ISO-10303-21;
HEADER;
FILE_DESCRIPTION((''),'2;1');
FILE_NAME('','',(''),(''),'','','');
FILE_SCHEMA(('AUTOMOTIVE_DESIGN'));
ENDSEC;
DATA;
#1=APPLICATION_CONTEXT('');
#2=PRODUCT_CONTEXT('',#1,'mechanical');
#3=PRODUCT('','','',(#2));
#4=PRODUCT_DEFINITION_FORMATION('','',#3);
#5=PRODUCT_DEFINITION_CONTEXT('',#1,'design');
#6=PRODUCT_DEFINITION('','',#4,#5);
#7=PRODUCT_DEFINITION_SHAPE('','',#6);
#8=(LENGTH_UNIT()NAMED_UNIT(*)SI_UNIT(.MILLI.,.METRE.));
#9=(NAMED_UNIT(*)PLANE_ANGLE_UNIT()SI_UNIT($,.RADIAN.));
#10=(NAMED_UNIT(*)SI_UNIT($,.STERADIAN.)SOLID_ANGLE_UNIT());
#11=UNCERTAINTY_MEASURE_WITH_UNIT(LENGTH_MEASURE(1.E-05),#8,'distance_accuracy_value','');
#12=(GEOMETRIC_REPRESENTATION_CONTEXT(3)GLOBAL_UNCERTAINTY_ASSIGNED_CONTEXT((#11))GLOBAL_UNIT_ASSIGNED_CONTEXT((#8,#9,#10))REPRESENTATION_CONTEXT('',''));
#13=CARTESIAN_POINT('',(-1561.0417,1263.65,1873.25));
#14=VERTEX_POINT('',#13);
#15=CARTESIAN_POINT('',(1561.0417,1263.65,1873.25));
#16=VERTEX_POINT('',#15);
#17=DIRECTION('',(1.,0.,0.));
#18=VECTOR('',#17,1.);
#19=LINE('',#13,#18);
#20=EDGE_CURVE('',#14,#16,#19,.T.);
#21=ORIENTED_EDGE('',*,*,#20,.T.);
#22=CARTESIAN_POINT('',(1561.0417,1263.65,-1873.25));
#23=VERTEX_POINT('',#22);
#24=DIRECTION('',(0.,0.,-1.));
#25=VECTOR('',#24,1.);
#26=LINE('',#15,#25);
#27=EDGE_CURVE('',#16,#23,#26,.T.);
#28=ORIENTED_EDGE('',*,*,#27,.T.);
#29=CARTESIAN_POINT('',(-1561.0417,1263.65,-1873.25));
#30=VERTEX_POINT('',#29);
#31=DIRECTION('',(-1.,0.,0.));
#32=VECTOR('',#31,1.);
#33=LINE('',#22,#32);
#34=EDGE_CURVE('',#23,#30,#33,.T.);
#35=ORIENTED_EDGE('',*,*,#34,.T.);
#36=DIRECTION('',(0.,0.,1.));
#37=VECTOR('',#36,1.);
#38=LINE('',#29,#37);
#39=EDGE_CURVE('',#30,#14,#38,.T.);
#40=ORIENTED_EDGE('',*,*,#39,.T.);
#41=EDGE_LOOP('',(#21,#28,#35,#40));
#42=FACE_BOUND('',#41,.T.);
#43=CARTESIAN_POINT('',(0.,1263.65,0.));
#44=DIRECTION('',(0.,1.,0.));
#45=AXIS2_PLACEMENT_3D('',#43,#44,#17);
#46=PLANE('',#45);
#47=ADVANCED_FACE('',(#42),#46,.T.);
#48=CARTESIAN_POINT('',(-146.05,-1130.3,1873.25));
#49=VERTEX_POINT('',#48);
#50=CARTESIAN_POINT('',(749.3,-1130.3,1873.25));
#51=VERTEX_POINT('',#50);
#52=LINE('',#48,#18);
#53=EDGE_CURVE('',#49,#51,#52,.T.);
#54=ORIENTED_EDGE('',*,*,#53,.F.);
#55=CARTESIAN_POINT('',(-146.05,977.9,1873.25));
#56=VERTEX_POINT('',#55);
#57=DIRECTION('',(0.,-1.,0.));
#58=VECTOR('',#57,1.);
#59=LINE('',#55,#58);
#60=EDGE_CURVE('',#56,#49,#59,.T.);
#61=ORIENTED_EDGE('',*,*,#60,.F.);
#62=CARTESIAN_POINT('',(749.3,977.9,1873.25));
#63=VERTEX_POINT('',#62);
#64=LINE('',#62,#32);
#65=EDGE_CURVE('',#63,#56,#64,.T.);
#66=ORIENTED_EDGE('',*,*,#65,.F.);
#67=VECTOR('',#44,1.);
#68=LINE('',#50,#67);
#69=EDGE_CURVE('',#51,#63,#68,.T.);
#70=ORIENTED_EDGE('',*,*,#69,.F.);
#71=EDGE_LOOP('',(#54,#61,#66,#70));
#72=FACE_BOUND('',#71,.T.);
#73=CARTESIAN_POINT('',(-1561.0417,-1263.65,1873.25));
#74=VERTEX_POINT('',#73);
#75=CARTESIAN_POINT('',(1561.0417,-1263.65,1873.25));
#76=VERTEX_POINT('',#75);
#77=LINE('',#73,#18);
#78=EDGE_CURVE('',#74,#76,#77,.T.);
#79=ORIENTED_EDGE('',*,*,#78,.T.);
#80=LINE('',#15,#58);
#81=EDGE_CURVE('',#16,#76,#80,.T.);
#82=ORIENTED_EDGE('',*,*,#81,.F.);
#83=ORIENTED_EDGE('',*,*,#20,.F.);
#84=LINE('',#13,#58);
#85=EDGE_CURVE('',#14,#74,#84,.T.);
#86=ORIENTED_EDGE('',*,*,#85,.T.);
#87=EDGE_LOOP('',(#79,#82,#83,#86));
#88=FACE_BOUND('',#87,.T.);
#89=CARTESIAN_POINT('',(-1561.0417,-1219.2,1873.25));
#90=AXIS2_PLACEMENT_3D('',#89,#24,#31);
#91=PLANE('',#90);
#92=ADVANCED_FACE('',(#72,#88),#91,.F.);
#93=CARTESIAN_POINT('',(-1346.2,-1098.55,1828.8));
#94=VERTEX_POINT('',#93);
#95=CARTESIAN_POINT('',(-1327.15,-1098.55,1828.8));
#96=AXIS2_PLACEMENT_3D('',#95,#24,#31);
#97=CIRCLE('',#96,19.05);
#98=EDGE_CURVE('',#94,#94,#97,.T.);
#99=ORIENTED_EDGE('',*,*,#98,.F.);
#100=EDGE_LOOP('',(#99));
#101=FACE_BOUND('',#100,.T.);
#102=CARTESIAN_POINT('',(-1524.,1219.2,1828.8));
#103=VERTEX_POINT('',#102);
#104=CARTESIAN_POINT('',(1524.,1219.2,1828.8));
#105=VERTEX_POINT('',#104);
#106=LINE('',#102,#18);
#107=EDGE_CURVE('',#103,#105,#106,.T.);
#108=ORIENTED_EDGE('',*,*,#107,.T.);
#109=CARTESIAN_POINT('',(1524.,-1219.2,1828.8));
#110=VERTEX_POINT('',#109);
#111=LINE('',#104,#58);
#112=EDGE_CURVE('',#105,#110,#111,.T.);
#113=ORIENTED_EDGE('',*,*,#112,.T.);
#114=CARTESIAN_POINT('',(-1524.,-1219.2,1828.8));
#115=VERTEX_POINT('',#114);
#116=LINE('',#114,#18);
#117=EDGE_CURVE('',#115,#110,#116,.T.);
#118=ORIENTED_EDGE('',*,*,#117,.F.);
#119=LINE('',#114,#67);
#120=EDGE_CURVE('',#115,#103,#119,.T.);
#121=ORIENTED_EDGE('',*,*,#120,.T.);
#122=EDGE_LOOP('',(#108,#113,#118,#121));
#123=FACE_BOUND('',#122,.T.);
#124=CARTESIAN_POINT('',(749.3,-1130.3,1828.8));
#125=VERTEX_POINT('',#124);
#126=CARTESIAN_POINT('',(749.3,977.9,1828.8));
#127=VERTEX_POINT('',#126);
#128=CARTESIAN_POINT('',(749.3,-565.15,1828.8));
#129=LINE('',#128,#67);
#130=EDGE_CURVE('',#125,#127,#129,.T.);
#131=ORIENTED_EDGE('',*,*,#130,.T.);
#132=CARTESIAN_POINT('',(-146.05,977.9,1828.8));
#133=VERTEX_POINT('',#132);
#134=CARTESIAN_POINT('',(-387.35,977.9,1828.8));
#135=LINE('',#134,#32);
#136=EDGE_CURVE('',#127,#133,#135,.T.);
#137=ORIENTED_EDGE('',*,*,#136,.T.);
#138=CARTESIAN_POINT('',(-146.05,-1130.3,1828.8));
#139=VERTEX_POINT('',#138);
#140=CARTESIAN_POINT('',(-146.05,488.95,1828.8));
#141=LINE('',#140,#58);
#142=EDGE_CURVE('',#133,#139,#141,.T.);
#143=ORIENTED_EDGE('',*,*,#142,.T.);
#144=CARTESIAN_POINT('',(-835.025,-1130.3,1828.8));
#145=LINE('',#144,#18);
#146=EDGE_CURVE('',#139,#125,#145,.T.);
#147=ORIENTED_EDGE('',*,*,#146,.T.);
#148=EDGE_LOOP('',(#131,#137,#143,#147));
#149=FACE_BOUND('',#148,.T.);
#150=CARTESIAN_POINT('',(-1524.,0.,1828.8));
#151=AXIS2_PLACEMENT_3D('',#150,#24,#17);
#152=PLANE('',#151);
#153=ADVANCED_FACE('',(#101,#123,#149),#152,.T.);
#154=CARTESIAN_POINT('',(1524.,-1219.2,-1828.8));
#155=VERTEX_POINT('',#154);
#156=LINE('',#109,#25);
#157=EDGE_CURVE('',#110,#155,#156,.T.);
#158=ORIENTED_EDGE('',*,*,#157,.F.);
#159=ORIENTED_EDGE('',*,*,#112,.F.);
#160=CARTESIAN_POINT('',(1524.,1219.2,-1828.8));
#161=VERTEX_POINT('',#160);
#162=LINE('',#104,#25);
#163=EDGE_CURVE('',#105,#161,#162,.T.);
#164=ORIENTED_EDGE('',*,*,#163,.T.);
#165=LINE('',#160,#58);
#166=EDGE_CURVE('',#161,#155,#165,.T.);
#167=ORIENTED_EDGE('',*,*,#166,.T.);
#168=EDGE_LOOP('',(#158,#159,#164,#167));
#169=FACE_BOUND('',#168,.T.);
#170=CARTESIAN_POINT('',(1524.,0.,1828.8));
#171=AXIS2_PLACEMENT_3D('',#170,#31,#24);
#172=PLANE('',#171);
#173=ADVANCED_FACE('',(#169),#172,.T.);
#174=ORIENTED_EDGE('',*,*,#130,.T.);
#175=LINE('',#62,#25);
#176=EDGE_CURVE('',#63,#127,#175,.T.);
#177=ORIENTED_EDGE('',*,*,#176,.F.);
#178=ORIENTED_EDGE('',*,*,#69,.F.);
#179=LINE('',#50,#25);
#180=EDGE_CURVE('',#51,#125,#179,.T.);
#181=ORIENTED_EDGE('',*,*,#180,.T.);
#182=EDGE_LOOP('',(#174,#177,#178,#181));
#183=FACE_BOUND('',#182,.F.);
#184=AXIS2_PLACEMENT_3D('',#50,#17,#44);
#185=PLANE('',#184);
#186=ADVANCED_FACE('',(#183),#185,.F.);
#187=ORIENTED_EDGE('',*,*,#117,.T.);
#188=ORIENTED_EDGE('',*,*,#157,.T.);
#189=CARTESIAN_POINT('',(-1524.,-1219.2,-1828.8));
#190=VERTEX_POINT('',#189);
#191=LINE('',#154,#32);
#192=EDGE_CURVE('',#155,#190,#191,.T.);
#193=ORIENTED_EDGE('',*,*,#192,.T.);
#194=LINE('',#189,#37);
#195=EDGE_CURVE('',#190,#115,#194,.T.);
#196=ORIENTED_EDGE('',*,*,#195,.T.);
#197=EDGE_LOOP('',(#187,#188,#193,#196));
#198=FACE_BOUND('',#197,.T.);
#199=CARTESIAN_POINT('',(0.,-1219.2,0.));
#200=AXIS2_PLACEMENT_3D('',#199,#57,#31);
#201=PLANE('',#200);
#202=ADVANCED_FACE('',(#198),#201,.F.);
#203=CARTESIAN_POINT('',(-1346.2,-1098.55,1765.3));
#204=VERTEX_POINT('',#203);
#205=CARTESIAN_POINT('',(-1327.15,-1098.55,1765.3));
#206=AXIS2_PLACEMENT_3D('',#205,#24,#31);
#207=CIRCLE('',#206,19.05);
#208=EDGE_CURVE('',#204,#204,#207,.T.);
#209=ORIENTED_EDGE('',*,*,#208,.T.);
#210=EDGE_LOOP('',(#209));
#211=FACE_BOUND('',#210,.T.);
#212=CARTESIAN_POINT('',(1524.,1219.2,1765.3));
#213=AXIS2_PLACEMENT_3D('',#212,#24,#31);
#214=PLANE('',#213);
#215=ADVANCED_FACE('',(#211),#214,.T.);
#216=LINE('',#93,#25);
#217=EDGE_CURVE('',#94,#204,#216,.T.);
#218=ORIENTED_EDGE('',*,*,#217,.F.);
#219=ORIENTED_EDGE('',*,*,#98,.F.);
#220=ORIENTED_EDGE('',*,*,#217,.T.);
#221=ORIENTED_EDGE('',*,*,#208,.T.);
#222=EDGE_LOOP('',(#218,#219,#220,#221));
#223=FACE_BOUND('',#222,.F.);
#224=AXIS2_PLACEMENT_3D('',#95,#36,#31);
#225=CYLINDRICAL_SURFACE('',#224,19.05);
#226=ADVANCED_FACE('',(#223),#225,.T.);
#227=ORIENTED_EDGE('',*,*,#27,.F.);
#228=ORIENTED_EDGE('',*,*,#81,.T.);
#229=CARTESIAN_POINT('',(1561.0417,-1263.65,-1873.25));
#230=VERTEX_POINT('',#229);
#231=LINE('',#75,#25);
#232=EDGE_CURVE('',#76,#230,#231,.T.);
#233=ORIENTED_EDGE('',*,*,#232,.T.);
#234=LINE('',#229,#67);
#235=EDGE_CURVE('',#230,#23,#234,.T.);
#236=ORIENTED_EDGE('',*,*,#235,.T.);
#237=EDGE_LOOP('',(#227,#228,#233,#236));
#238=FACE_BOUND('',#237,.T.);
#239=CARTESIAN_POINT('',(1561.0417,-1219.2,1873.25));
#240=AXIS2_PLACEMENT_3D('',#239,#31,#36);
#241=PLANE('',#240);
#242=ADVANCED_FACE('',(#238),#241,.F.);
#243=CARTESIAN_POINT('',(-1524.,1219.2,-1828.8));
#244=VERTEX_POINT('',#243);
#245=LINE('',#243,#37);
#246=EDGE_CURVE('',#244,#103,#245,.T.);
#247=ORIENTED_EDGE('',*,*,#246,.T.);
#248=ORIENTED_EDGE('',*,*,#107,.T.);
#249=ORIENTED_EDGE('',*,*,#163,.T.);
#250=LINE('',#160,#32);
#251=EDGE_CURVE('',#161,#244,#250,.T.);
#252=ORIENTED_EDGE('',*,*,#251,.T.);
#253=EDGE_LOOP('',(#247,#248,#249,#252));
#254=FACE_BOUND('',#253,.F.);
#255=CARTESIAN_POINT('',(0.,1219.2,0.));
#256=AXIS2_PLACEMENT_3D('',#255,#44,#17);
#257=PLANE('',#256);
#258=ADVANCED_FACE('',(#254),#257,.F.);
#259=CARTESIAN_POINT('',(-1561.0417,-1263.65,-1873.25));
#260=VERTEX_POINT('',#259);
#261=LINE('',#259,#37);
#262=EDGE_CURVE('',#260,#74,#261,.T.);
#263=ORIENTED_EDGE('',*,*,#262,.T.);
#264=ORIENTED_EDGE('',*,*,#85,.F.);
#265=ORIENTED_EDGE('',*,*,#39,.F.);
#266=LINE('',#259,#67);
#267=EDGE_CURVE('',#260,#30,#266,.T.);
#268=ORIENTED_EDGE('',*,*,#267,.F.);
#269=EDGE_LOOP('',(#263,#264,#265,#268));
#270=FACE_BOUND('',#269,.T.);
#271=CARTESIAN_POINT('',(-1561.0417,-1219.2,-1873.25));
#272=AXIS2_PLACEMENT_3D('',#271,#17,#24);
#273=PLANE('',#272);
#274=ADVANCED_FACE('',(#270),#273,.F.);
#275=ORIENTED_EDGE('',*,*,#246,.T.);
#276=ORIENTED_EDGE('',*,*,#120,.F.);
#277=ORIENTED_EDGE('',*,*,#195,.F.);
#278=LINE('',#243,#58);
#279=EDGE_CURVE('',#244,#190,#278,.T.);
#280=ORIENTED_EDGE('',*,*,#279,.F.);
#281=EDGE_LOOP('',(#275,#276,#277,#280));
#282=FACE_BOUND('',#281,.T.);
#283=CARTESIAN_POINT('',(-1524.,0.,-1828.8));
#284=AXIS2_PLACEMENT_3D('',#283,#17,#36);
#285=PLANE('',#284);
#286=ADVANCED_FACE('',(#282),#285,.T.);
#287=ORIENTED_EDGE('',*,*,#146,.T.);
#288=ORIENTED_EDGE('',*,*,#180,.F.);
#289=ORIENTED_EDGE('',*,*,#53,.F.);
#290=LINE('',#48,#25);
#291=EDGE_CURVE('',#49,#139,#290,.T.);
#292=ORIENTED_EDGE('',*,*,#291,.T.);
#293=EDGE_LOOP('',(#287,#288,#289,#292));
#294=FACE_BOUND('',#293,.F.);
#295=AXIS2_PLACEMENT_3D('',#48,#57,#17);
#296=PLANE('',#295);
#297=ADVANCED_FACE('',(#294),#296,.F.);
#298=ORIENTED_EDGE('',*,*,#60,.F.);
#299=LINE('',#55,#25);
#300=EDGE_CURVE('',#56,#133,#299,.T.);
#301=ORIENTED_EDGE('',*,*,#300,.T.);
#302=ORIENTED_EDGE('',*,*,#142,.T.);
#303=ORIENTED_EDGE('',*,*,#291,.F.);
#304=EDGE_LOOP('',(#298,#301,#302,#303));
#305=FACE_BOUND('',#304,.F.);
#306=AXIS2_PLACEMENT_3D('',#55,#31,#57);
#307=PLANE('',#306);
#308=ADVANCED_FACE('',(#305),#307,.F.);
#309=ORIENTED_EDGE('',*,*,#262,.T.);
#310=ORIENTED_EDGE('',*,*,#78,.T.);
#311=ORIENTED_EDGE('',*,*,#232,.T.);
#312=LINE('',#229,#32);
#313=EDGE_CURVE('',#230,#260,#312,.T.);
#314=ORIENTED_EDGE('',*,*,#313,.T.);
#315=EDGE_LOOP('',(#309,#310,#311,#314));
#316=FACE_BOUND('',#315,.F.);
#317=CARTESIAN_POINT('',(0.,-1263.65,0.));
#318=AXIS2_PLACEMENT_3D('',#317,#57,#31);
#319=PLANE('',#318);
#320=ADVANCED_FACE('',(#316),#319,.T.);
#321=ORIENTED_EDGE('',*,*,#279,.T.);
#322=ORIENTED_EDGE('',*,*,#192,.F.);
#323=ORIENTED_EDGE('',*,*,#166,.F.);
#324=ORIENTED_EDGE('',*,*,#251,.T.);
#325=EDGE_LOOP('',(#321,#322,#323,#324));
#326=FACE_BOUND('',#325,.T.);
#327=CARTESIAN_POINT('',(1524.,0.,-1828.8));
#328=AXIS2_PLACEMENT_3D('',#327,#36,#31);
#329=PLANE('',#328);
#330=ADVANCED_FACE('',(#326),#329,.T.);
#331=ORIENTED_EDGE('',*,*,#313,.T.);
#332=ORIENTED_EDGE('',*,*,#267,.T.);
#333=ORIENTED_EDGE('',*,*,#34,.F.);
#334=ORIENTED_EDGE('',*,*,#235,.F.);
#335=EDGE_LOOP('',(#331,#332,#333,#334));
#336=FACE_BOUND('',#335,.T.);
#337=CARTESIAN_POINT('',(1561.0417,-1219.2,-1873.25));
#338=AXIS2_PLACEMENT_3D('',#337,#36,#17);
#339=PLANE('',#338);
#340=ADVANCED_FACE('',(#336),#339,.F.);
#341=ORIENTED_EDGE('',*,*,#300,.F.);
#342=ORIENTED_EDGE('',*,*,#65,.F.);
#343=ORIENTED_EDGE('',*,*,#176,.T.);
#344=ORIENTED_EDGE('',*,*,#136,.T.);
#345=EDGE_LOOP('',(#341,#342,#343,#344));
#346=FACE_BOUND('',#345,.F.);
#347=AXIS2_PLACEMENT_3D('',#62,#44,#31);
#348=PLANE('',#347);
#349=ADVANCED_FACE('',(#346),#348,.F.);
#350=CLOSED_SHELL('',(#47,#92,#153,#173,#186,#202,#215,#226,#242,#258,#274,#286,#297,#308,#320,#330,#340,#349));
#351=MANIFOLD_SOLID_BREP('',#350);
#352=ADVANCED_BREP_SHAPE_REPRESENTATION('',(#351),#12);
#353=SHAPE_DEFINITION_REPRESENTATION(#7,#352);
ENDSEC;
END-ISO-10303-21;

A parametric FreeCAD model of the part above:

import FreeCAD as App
import Part
import Sketcher

V = App.Vector
Q = App.Units.Quantity

doc = App.newDocument("Part")
params = doc.addObject("Spreadsheet::Sheet", "Params")
for row, (alias, value) in enumerate([
    ("sketch1_width", "120 in"),
    ("sketch1_height", "144 in"),
    ("pad1_length", "96 in"),
    ("sketch2_height", "147.5 in"),
    ("pad2_length", "1.75 in"),
    ("sketch3_height", "83 in"),
    ("sketch3_width", "35.25 in"),
    ("sketch4_diameter", "1.5 in"),
    ("pad3_length", "2.5 in"),
], start=1):
    params.set(f"A{row}", alias)
    params.set(f"B{row}", "=" + value)
    params.setAlias(f"B{row}", alias)

body = doc.addObject("PartDesign::Body", "Body")

sketch1 = body.newObject("Sketcher::SketchObject", "Sketch")
sketch1.AttachmentSupport = (doc.getObject("XZ_Plane"), [""])
sketch1.MapMode = "FlatFace"
sketch1.addGeometry(Part.LineSegment(V(-1561.0417, 1873.25, 0), V(1561.0417, 1873.25, 0)), False)
sketch1.addGeometry(Part.LineSegment(V(1561.0417, 1873.25, 0), V(1561.0417, -1873.25, 0)), False)
sketch1.addGeometry(Part.LineSegment(V(1561.0417, -1873.25, 0), V(-1561.0417, -1873.25, 0)), False)
sketch1.addGeometry(Part.LineSegment(V(-1561.0417, -1873.25, 0), V(-1561.0417, 1873.25, 0)), False)
sketch1.addGeometry(Part.LineSegment(V(1524, 1828.8, 0), V(-1524, 1828.8, 0)), False)
sketch1.addGeometry(Part.LineSegment(V(-1524, 1828.8, 0), V(-1524, -1828.8, 0)), False)
sketch1.addGeometry(Part.LineSegment(V(-1524, -1828.8, 0), V(1524, -1828.8, 0)), False)
sketch1.addGeometry(Part.LineSegment(V(1524, -1828.8, 0), V(1524, 1828.8, 0)), False)
sketch1.addConstraint(Sketcher.Constraint("Coincident", 0, 2, 1, 1))
sketch1.addConstraint(Sketcher.Constraint("Coincident", 1, 2, 2, 1))
sketch1.addConstraint(Sketcher.Constraint("Coincident", 2, 2, 3, 1))
sketch1.addConstraint(Sketcher.Constraint("Coincident", 3, 2, 0, 1))
sketch1.addConstraint(Sketcher.Constraint("Coincident", 4, 2, 5, 1))
sketch1.addConstraint(Sketcher.Constraint("Coincident", 5, 2, 6, 1))
sketch1.addConstraint(Sketcher.Constraint("Coincident", 6, 2, 7, 1))
sketch1.addConstraint(Sketcher.Constraint("Coincident", 7, 2, 4, 1))
sketch1.addConstraint(Sketcher.Constraint("Horizontal", 0))
sketch1.addConstraint(Sketcher.Constraint("Vertical", 1))
sketch1.addConstraint(Sketcher.Constraint("Horizontal", 2))
sketch1.addConstraint(Sketcher.Constraint("Vertical", 3))
sketch1.addConstraint(Sketcher.Constraint("Horizontal", 4))
sketch1.addConstraint(Sketcher.Constraint("Vertical", 5))
sketch1.addConstraint(Sketcher.Constraint("Horizontal", 6))
sketch1.addConstraint(Sketcher.Constraint("Vertical", 7))
sketch1.addConstraint(Sketcher.Constraint("Symmetric", 0, 2, 2, 2, -1, 1))
sketch1.addConstraint(Sketcher.Constraint("Symmetric", 4, 2, 6, 2, -1, 1))
sketch1.addConstraint(Sketcher.Constraint("DistanceX", 4, 2, 4, 1, Q("120 in")))
sketch1.addConstraint(Sketcher.Constraint("DistanceY", 5, 2, 5, 1, Q("144 in")))
sketch1.addConstraint(Sketcher.Constraint("DistanceY", 4, 2, 3, 2, Q("1.75 in")))
sketch1.addConstraint(Sketcher.Constraint("DistanceX", 0, 1, 0, 2, Q("3122.0834 mm")))
sketch1.setExpression("Constraints[18]", "Params.sketch1_width")
sketch1.setExpression("Constraints[19]", "Params.sketch1_height")
pad1 = body.newObject("PartDesign::Pad", "Pad")
pad1.Profile = sketch1
pad1.setExpression("Length", "Params.pad1_length")
pad1.Midplane = True

sketch2 = body.newObject("Sketcher::SketchObject", "Sketch001")
sketch2.AttachmentSupport = (doc.getObject("XZ_Plane"), [""])
sketch2.MapMode = "FlatFace"
sketch2.AttachmentOffset = App.Placement(V(0, 0, -48 * 25.4), App.Rotation())
sketch2.addGeometry(Part.LineSegment(V(1561.0417, 1873.25, 0), V(1561.0417, -1873.25, 0)), False)
sketch2.addGeometry(Part.LineSegment(V(1561.0417, -1873.25, 0), V(-1561.0417, -1873.25, 0)), False)
sketch2.addGeometry(Part.LineSegment(V(-1561.0417, -1873.25, 0), V(-1561.0417, 1873.25, 0)), False)
sketch2.addGeometry(Part.LineSegment(V(-1561.0417, 1873.25, 0), V(1561.0417, 1873.25, 0)), False)
sketch2.addConstraint(Sketcher.Constraint("Coincident", 0, 2, 1, 1))
sketch2.addConstraint(Sketcher.Constraint("Coincident", 1, 2, 2, 1))
sketch2.addConstraint(Sketcher.Constraint("Coincident", 2, 2, 3, 1))
sketch2.addConstraint(Sketcher.Constraint("Coincident", 3, 2, 0, 1))
sketch2.addConstraint(Sketcher.Constraint("Vertical", 0))
sketch2.addConstraint(Sketcher.Constraint("Horizontal", 1))
sketch2.addConstraint(Sketcher.Constraint("Vertical", 2))
sketch2.addConstraint(Sketcher.Constraint("Horizontal", 3))
sketch2.addConstraint(Sketcher.Constraint("Symmetric", 0, 2, 2, 2, -1, 1))
sketch2.addConstraint(Sketcher.Constraint("DistanceY", 0, 2, 0, 1, Q("147.5 in")))
sketch2.addConstraint(Sketcher.Constraint("DistanceX", 1, 2, 1, 1, Q("3122.0834 mm")))
sketch2.setExpression("Constraints[9]", "Params.sketch2_height")
pad2 = body.newObject("PartDesign::Pad", "Pad001")
pad2.Profile = sketch2
pad2.setExpression("Length", "Params.pad2_length")
pad2.Reversed = True
doc.recompute()

mirrored = body.newObject("PartDesign::Mirrored", "Mirrored")
mirrored.Originals = [pad2]
mirrored.MirrorPlane = (doc.getObject("XZ_Plane"), [""])
body.Tip = mirrored

sketch3 = body.newObject("Sketcher::SketchObject", "Sketch002")
sketch3.AttachmentSupport = (doc.getObject("XY_Plane"), [""])
sketch3.MapMode = "FlatFace"
sketch3.AttachmentOffset = App.Placement(V(0, 0, 73.75 * 25.4), App.Rotation())
sketch3.addGeometry(Part.LineSegment(V(-146.05, 977.9, 0), V(-146.05, -1130.3, 0)), False)
sketch3.addGeometry(Part.LineSegment(V(-146.05, -1130.3, 0), V(749.3, -1130.3, 0)), False)
sketch3.addGeometry(Part.LineSegment(V(749.3, -1130.3, 0), V(749.3, 977.9, 0)), False)
sketch3.addGeometry(Part.LineSegment(V(749.3, 977.9, 0), V(-146.05, 977.9, 0)), False)
sketch3.addConstraint(Sketcher.Constraint("Coincident", 0, 2, 1, 1))
sketch3.addConstraint(Sketcher.Constraint("Coincident", 1, 2, 2, 1))
sketch3.addConstraint(Sketcher.Constraint("Coincident", 2, 2, 3, 1))
sketch3.addConstraint(Sketcher.Constraint("Coincident", 3, 2, 0, 1))
sketch3.addConstraint(Sketcher.Constraint("Vertical", 0))
sketch3.addConstraint(Sketcher.Constraint("Horizontal", 1))
sketch3.addConstraint(Sketcher.Constraint("Vertical", 2))
sketch3.addConstraint(Sketcher.Constraint("Horizontal", 3))
sketch3.addConstraint(Sketcher.Constraint("DistanceY", 0, 2, 0, 1, Q("83 in")))
sketch3.addConstraint(Sketcher.Constraint("DistanceX", 1, 1, 1, 2, Q("35.25 in")))
sketch3.addConstraint(Sketcher.Constraint("DistanceY", 0, 2, -1, 1, Q("44.5 in")))
sketch3.addConstraint(Sketcher.Constraint("DistanceX", -1, 1, 1, 2, Q("29.5 in")))
sketch3.setExpression("Constraints[8]", "Params.sketch3_height")
sketch3.setExpression("Constraints[9]", "Params.sketch3_width")
pocket1 = body.newObject("PartDesign::Pocket", "Pocket")
pocket1.Profile = sketch3
pocket1.Type = "UpToFirst"

sketch4 = body.newObject("Sketcher::SketchObject", "Sketch003")
sketch4.AttachmentSupport = (doc.getObject("XY_Plane"), [""])
sketch4.MapMode = "FlatFace"
sketch4.AttachmentOffset = App.Placement(V(0, 0, 72 * 25.4), App.Rotation())
sketch4.addGeometry(Part.Circle(V(-1327.15, -1098.55, 0), V(0, 0, 1), 19.05), False)
sketch4.addConstraint(Sketcher.Constraint("Diameter", 0, Q("1.5 in")))
sketch4.addConstraint(Sketcher.Constraint("DistanceX", 0, 3, -1, 1, Q("52.25 in")))
sketch4.addConstraint(Sketcher.Constraint("DistanceY", 0, 3, -1, 1, Q("43.25 in")))
sketch4.setExpression("Constraints[0]", "Params.sketch4_diameter")
pad3 = body.newObject("PartDesign::Pad", "Pad002")
pad3.Profile = sketch4
pad3.setExpression("Length", "Params.pad3_length")
pad3.Reversed = True

doc.recompute()
